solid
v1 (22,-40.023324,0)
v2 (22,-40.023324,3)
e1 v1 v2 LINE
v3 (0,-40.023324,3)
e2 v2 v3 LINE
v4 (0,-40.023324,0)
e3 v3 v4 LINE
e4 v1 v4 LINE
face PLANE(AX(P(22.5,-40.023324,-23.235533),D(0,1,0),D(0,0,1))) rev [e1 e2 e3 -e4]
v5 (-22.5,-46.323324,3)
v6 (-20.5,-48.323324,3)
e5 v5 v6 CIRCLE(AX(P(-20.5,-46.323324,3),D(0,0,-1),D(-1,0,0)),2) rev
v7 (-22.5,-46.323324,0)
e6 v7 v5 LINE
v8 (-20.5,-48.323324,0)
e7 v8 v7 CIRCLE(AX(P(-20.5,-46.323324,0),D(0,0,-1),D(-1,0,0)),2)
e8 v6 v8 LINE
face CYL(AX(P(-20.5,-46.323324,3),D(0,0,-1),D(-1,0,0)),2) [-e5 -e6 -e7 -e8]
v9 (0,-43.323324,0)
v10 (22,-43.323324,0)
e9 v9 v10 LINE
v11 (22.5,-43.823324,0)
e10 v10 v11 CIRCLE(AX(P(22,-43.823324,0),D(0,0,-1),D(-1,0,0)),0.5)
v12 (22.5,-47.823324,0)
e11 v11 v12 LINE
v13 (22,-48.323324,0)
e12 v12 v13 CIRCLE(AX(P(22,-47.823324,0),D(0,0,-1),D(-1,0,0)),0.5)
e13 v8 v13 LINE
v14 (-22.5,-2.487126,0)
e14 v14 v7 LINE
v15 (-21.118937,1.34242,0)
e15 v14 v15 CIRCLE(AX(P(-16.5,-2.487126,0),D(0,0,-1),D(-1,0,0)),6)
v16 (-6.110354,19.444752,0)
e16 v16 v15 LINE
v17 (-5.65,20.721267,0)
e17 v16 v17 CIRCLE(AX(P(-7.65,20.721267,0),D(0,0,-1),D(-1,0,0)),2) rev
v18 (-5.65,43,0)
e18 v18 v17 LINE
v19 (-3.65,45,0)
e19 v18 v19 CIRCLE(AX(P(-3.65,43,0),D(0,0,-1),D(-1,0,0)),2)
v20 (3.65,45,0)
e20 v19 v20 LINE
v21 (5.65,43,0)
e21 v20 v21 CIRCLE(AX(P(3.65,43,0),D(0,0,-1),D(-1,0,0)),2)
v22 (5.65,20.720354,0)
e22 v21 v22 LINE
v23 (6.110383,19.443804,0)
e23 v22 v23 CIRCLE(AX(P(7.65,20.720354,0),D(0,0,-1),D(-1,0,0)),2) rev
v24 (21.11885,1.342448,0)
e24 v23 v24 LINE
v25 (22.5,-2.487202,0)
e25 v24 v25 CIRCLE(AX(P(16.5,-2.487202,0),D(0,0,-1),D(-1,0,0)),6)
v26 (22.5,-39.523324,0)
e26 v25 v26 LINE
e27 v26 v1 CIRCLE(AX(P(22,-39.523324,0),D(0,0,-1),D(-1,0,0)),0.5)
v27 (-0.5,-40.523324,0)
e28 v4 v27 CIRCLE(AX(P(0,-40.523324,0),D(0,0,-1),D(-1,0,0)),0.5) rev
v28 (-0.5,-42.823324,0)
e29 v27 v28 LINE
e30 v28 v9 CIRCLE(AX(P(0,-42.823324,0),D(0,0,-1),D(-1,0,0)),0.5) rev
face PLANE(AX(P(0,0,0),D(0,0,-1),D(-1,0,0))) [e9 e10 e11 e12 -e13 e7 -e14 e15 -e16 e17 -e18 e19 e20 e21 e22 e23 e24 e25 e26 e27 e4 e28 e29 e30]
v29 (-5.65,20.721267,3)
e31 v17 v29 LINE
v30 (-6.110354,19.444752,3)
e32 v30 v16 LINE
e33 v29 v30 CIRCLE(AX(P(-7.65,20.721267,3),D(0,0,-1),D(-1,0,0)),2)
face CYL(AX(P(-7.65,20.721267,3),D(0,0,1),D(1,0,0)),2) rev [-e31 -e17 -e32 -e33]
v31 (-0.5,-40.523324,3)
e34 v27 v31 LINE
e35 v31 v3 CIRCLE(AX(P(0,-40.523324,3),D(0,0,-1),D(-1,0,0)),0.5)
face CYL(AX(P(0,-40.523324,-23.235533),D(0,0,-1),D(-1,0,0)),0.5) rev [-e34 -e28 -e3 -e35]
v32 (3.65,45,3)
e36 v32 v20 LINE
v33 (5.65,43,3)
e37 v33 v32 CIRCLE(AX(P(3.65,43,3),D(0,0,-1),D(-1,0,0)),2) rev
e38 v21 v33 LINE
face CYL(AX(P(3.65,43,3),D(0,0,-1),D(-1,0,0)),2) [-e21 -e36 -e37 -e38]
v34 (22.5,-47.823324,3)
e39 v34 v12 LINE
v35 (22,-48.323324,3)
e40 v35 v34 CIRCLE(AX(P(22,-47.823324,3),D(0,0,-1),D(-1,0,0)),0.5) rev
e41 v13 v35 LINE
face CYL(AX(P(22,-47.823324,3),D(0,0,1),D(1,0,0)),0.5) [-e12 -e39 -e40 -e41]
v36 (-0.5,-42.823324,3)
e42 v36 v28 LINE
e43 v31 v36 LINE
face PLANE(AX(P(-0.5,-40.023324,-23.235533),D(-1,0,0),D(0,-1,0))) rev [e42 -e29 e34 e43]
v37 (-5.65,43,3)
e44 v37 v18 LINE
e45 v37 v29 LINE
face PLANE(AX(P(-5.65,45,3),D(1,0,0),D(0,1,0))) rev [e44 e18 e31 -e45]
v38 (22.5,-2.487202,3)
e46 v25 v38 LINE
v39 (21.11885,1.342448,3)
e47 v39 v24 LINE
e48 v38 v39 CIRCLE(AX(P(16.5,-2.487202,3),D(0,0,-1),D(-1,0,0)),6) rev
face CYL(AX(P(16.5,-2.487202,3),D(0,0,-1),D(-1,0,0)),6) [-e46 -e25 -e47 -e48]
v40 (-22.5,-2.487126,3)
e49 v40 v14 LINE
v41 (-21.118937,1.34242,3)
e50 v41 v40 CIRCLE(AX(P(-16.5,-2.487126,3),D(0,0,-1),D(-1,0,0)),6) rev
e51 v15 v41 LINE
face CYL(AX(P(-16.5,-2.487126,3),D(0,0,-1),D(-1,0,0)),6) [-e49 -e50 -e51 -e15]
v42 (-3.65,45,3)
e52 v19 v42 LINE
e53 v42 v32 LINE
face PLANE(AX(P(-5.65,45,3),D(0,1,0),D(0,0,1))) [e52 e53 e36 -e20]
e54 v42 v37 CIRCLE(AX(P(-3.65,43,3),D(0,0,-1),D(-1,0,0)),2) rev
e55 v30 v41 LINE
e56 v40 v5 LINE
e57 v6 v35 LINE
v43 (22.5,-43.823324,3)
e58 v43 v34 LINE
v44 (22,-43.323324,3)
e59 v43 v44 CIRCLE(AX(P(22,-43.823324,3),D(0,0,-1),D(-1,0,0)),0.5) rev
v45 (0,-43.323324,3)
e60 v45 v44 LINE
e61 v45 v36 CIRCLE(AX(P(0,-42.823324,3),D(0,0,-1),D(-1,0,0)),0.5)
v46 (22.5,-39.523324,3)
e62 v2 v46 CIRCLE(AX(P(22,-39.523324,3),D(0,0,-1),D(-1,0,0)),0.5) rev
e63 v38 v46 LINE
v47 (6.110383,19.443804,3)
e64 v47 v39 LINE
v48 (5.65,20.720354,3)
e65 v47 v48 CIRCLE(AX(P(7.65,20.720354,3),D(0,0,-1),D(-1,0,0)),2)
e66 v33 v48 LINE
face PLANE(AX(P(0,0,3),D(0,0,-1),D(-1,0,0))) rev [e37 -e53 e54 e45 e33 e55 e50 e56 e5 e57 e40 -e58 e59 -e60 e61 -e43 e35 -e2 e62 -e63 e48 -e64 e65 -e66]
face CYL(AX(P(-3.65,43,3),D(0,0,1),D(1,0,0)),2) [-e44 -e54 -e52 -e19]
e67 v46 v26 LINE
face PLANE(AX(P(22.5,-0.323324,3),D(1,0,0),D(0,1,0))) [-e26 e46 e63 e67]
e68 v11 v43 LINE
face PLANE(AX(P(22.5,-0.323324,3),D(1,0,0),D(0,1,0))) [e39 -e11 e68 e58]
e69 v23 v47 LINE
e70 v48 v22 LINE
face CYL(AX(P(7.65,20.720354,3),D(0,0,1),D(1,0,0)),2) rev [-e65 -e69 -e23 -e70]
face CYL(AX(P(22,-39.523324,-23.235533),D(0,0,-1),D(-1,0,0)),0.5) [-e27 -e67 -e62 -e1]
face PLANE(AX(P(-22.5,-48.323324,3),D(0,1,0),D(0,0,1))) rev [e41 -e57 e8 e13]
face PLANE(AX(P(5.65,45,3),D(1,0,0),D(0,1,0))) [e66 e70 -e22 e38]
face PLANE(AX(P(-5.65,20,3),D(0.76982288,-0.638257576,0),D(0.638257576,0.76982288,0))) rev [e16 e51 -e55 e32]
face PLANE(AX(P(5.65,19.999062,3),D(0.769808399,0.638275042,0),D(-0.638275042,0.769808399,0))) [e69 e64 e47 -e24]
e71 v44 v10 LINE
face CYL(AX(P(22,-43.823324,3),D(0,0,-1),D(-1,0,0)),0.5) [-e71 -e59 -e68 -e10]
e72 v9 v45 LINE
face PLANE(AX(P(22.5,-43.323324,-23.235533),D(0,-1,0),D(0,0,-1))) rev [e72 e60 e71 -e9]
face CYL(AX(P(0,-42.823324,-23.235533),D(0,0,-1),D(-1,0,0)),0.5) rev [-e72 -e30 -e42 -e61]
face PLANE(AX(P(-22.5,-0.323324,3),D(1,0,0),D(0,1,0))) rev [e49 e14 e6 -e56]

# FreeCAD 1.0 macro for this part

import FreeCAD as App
import Part
import Sketcher

V = App.Vector


def edges_at(feature, points):
    """Names of the edges that pass closest to the given points."""
    edges = feature.Shape.Edges
    near = lambda p: min(range(len(edges)), key=lambda i: edges[i].distToShape(Part.Vertex(*p))[0])
    return sorted({f"Edge{near(p) + 1}" for p in points})

doc = App.newDocument("Part")
body = doc.addObject("PartDesign::Body", "Body")

sketch1 = body.newObject("Sketcher::SketchObject", "Sketch")
sketch1.AttachmentSupport = (doc.getObject("XY_Plane"), [""])
sketch1.MapMode = "FlatFace"
sketch1.addGeometry([
    Part.LineSegment(V(-5.65, 20, 0), V(-22.5, -0.323324, 0)),
    Part.LineSegment(V(-22.5, -0.323324, 0), V(-22.5, -48.323324, 0)),
    Part.LineSegment(V(-22.5, -48.323324, 0), V(22.5, -48.323324, 0)),
    Part.LineSegment(V(22.5, -48.323324, 0), V(22.5, -0.323324, 0)),
    Part.LineSegment(V(22.5, -0.323324, 0), V(5.65, 19.999062, 0)),
    Part.LineSegment(V(5.65, 19.999062, 0), V(5.65, 45, 0)),
    Part.LineSegment(V(5.65, 45, 0), V(-5.65, 45, 0)),
    Part.LineSegment(V(-5.65, 45, 0), V(-5.65, 20, 0)),
], False)
sketch1.addConstraint([
    Sketcher.Constraint("Coincident", 0, 2, 1, 1),
    Sketcher.Constraint("Coincident", 1, 2, 2, 1),
    Sketcher.Constraint("Coincident", 2, 2, 3, 1),
    Sketcher.Constraint("Coincident", 3, 2, 4, 1),
    Sketcher.Constraint("Coincident", 4, 2, 5, 1),
    Sketcher.Constraint("Coincident", 5, 2, 6, 1),
    Sketcher.Constraint("Coincident", 6, 2, 7, 1),
    Sketcher.Constraint("Coincident", 7, 2, 0, 1),
    Sketcher.Constraint("Vertical", 1),
    Sketcher.Constraint("Horizontal", 2),
    Sketcher.Constraint("Vertical", 3),
    Sketcher.Constraint("Vertical", 5),
    Sketcher.Constraint("Horizontal", 6),
    Sketcher.Constraint("Vertical", 7),
    Sketcher.Constraint("Symmetric", 0, 2, 3, 2, -2),
    Sketcher.Constraint("DistanceX", 2, 1, 2, 2, 45.0),
    Sketcher.Constraint("DistanceY", 1, 2, 1, 1, 48.0),
    Sketcher.Constraint("DistanceY", 7, 2, 7, 1, 25.0),
    Sketcher.Constraint("DistanceX", 6, 2, 6, 1, 11.3),
    Sketcher.Constraint("DistanceY", -1, 1, 5, 2, 45.0),
    Sketcher.Constraint("Distance", 0, 26.4),
    Sketcher.Constraint("DistanceX", -1, 1, 4, 2, 5.65),
    Sketcher.Constraint("DistanceY", 5, 1, 5, 2, 25.000938),
])
pad1 = body.newObject("PartDesign::Pad", "Pad")
pad1.Profile = sketch1
pad1.Length = 3

sketch2 = body.newObject("Sketcher::SketchObject", "Sketch001")
sketch2.AttachmentSupport = (doc.getObject("XY_Plane"), [""])
sketch2.MapMode = "FlatFace"
sketch2.AttachmentOffset = App.Placement(V(0, 0, 3), App.Rotation())
sketch2.addGeometry([
    Part.LineSegment(V(-0.5, -40.023324, 0), V(-0.5, -43.323324, 0)),
    Part.LineSegment(V(-0.5, -43.323324, 0), V(22.5, -43.323324, 0)),
    Part.LineSegment(V(22.5, -43.323324, 0), V(22.5, -40.023324, 0)),
    Part.LineSegment(V(22.5, -40.023324, 0), V(-0.5, -40.023324, 0)),
], False)
sketch2.addConstraint([
    Sketcher.Constraint("Coincident", 0, 2, 1, 1),
    Sketcher.Constraint("Coincident", 1, 2, 2, 1),
    Sketcher.Constraint("Coincident", 2, 2, 3, 1),
    Sketcher.Constraint("Coincident", 3, 2, 0, 1),
    Sketcher.Constraint("Vertical", 0),
    Sketcher.Constraint("Horizontal", 1),
    Sketcher.Constraint("Vertical", 2),
    Sketcher.Constraint("Horizontal", 3),
    Sketcher.Constraint("DistanceX", 1, 1, 1, 2, 23.0),
    Sketcher.Constraint("DistanceY", 0, 2, 0, 1, 3.3),
    Sketcher.Constraint("DistanceX", 0, 2, -1, 1, 0.5),
    Sketcher.Constraint("DistanceY", 0, 2, -1, 1, 43.323324),
])
pocket1 = body.newObject("PartDesign::Pocket", "Pocket")
pocket1.Profile = sketch2
pocket1.Length = 3
doc.recompute()

fillet = body.newObject("PartDesign::Fillet", "Fillet")
fillet.Base = (pocket1, edges_at(pocket1, [
    (-5.65, 45, 1.5),
    (-5.65, 20, 1.5),
    (-22.5, -48.323, 1.5),
    (5.65, 19.999, 1.5),
    (5.65, 45, 1.5),
]))
fillet.Radius = 2
doc.recompute()

fillet2 = body.newObject("PartDesign::Fillet", "Fillet001")
fillet2.Base = (fillet, edges_at(fillet, [(-22.5, -0.323, 1.5), (22.5, -0.323, 1.5)]))
fillet2.Radius = 6
doc.recompute()

fillet3 = body.newObject("PartDesign::Fillet", "Fillet002")
fillet3.Base = (fillet2, edges_at(fillet2, [
    (22.5, -48.323, 1.5),
    (-0.5, -40.023, 1.5),
    (-0.5, -43.323, 1.5),
    (22.5, -43.323, 1.5),
    (22.5, -40.023, 1.5),
]))
fillet3.Radius = 0.5

doc.recompute()
